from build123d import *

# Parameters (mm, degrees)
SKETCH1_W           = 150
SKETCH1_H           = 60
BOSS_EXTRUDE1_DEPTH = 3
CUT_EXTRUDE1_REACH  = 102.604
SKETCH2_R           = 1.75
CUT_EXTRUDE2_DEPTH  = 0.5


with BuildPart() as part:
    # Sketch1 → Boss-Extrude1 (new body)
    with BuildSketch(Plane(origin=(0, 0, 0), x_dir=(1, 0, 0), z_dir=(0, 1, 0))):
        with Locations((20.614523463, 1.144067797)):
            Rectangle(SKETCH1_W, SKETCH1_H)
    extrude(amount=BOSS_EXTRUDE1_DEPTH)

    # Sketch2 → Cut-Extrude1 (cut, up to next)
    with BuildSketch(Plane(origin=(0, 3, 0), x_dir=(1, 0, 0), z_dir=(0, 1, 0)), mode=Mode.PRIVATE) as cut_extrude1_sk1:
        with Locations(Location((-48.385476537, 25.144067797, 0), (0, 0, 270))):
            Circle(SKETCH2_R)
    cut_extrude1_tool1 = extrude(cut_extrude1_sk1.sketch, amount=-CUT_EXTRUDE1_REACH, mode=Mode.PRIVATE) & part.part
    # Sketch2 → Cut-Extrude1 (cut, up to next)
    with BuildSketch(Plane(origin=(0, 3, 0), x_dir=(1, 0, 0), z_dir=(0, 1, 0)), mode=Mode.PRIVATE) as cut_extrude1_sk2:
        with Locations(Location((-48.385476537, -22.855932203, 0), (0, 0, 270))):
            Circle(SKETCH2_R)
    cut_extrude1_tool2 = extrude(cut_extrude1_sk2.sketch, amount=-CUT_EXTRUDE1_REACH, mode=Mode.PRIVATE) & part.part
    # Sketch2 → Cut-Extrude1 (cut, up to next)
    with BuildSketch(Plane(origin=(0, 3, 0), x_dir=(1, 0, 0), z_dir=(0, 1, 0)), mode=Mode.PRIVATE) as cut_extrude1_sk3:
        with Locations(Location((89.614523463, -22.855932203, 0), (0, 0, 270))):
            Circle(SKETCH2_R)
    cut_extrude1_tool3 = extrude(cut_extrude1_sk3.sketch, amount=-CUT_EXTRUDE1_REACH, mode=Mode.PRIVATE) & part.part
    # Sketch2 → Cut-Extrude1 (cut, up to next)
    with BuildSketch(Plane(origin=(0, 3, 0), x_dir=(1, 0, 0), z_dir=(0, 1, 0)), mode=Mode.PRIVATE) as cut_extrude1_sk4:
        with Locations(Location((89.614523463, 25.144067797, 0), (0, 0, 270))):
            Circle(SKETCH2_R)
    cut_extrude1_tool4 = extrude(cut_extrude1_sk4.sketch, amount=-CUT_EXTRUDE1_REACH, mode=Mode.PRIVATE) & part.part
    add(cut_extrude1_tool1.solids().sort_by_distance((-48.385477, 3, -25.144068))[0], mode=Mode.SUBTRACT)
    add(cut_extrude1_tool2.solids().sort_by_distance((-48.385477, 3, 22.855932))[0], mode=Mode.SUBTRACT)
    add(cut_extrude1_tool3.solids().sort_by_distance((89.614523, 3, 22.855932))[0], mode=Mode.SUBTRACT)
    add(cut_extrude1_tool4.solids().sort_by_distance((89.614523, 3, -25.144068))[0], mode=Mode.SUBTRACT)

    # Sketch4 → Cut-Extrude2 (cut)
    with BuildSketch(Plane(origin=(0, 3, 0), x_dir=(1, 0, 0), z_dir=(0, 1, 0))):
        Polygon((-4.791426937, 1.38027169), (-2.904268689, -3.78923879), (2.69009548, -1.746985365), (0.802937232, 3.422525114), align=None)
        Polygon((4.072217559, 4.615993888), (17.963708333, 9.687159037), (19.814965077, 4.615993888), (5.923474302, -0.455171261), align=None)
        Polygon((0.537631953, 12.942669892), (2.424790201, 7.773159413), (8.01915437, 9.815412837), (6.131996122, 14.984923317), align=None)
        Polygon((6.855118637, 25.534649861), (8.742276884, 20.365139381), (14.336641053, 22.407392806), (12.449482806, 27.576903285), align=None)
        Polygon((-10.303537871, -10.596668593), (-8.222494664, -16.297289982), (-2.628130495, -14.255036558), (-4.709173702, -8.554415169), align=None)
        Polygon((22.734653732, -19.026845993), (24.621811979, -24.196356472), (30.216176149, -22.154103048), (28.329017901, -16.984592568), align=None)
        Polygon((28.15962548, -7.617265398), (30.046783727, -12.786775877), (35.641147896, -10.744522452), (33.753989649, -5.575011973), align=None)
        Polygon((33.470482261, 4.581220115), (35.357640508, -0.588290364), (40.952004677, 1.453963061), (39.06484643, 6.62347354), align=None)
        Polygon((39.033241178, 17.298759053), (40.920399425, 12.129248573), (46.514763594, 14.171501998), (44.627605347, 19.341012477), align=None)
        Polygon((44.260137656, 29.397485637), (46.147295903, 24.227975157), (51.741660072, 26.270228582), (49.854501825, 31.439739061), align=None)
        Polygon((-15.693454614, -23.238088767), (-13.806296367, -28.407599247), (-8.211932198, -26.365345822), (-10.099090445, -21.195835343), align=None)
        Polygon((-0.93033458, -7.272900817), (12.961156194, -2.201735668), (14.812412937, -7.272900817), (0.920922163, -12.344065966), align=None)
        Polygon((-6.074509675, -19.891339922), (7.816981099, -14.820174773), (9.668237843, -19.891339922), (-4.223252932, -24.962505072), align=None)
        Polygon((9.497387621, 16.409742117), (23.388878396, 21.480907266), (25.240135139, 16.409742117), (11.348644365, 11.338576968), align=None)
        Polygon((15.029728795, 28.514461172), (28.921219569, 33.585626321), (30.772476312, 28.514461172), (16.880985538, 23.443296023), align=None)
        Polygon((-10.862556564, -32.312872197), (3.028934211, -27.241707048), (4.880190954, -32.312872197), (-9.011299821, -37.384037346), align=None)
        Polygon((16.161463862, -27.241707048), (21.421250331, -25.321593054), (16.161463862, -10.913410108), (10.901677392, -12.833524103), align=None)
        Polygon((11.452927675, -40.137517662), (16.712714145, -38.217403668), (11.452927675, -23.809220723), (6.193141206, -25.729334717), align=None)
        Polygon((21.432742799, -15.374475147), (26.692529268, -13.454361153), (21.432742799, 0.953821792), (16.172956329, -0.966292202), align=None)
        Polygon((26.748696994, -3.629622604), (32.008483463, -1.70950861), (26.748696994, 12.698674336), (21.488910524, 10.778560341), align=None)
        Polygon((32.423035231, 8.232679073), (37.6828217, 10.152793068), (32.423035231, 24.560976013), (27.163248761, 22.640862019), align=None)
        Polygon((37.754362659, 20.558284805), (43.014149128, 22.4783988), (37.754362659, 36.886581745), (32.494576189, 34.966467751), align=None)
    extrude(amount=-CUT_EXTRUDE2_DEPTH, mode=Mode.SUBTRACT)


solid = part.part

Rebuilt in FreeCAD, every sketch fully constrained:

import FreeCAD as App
import Part
import Sketcher

V = App.Vector


def add_polygon(sketch, points):
    """Adds a closed chain of lines whose ends are joined by coincident constraints."""
    first, n = sketch.GeometryCount, len(points)
    for a, b in zip(points, points[1:] + points[:1]):
        sketch.addGeometry(Part.LineSegment(App.Vector(*a, 0), App.Vector(*b, 0)), False)
    for i in range(n):
        sketch.addConstraint(Sketcher.Constraint("Coincident", first + i, 2, first + (i + 1) % n, 1))

doc = App.newDocument("Part")
params = doc.addObject("Spreadsheet::Sheet", "Params")
for row, (alias, value) in enumerate([
    ("sketch1_width", "150 mm"),
    ("sketch1_height", "60 mm"),
    ("pad1_length", "3 mm"),
    ("sketch2_diameter", "3.5 mm"),
    ("sketch3_diameter", "3.5 mm"),
    ("sketch4_diameter", "3.5 mm"),
    ("sketch5_diameter", "3.5 mm"),
    ("pocket5_length", "0.5 mm"),
], start=1):
    params.set(f"A{row}", alias)
    params.set(f"B{row}", "=" + value)
    params.setAlias(f"B{row}", alias)

body = doc.addObject("PartDesign::Body", "Body")

sketch1 = body.newObject("Sketcher::SketchObject", "Sketch")
sketch1.AttachmentSupport = (doc.getObject("XZ_Plane"), [""])
sketch1.MapMode = "FlatFace"
add_polygon(sketch1, [(-54, -31), (-54, 29), (96, 29), (96, -31)])
sketch1.addConstraint(Sketcher.Constraint("Vertical", 0))
sketch1.addConstraint(Sketcher.Constraint("Horizontal", 1))
sketch1.addConstraint(Sketcher.Constraint("Vertical", 2))
sketch1.addConstraint(Sketcher.Constraint("Horizontal", 3))
sketch1.addConstraint(Sketcher.Constraint("DistanceX", 1, 1, 1, 2, 150.0))
sketch1.addConstraint(Sketcher.Constraint("DistanceY", 0, 1, 0, 2, 60.0))
sketch1.addConstraint(Sketcher.Constraint("DistanceX", 0, 2, -1, 1, 54.385477))
sketch1.addConstraint(Sketcher.Constraint("DistanceY", -1, 1, 0, 2, 28.855932))
sketch1.setExpression("Constraints[8]", "Params.sketch1_width")
sketch1.setExpression("Constraints[9]", "Params.sketch1_height")
pad1 = body.newObject("PartDesign::Pad", "Pad")
pad1.Profile = sketch1
pad1.setExpression("Length", "Params.pad1_length")
pad1.Reversed = True

sketch2 = body.newObject("Sketcher::SketchObject", "Sketch001")
sketch2.AttachmentSupport = (doc.getObject("XZ_Plane"), [""])
sketch2.MapMode = "FlatFace"
sketch2.AttachmentOffset = App.Placement(V(0, 0, -3), App.Rotation())
sketch2.addGeometry(Part.Circle(V(-48.4, -25.1, 0), V(0, 0, 1), 1.8), False)
sketch2.addConstraint(Sketcher.Constraint("Diameter", 0, 3.5))
sketch2.addConstraint(Sketcher.Constraint("DistanceX", 0, 3, -1, 1, 48.385477))
sketch2.addConstraint(Sketcher.Constraint("DistanceY", 0, 3, -1, 1, 25.144068))
sketch2.setExpression("Constraints[0]", "Params.sketch2_diameter")
pocket1 = body.newObject("PartDesign::Pocket", "Pocket")
pocket1.Profile = sketch2
pocket1.Type = "UpToFirst"
pocket1.Reversed = True

sketch3 = body.newObject("Sketcher::SketchObject", "Sketch002")
sketch3.AttachmentSupport = (doc.getObject("XZ_Plane"), [""])
sketch3.MapMode = "FlatFace"
sketch3.AttachmentOffset = App.Placement(V(0, 0, -3), App.Rotation())
sketch3.addGeometry(Part.Circle(V(-48.4, 22.9, 0), V(0, 0, 1), 1.8), False)
sketch3.addConstraint(Sketcher.Constraint("Diameter", 0, 3.5))
sketch3.addConstraint(Sketcher.Constraint("DistanceX", 0, 3, -1, 1, 48.385477))
sketch3.addConstraint(Sketcher.Constraint("DistanceY", -1, 1, 0, 3, 22.855932))
sketch3.setExpression("Constraints[0]", "Params.sketch3_diameter")
pocket2 = body.newObject("PartDesign::Pocket", "Pocket001")
pocket2.Profile = sketch3
pocket2.Type = "UpToFirst"
pocket2.Reversed = True

sketch4 = body.newObject("Sketcher::SketchObject", "Sketch003")
sketch4.AttachmentSupport = (doc.getObject("XZ_Plane"), [""])
sketch4.MapMode = "FlatFace"
sketch4.AttachmentOffset = App.Placement(V(0, 0, -3), App.Rotation())
sketch4.addGeometry(Part.Circle(V(89.6, 22.9, 0), V(0, 0, 1), 1.8), False)
sketch4.addConstraint(Sketcher.Constraint("Diameter", 0, 3.5))
sketch4.addConstraint(Sketcher.Constraint("DistanceX", -1, 1, 0, 3, 89.614523))
sketch4.addConstraint(Sketcher.Constraint("DistanceY", -1, 1, 0, 3, 22.855932))
sketch4.setExpression("Constraints[0]", "Params.sketch4_diameter")
pocket3 = body.newObject("PartDesign::Pocket", "Pocket002")
pocket3.Profile = sketch4
pocket3.Type = "UpToFirst"
pocket3.Reversed = True

sketch5 = body.newObject("Sketcher::SketchObject", "Sketch004")
sketch5.AttachmentSupport = (doc.getObject("XZ_Plane"), [""])
sketch5.MapMode = "FlatFace"
sketch5.AttachmentOffset = App.Placement(V(0, 0, -3), App.Rotation())
sketch5.addGeometry(Part.Circle(V(89.6, -25.1, 0), V(0, 0, 1), 1.8), False)
sketch5.addConstraint(Sketcher.Constraint("Diameter", 0, 3.5))
sketch5.addConstraint(Sketcher.Constraint("DistanceX", -1, 1, 0, 3, 89.614523))
sketch5.addConstraint(Sketcher.Constraint("DistanceY", 0, 3, -1, 1, 25.144068))
sketch5.setExpression("Constraints[0]", "Params.sketch5_diameter")
pocket4 = body.newObject("PartDesign::Pocket", "Pocket003")
pocket4.Profile = sketch5
pocket4.Type = "UpToFirst"
pocket4.Reversed = True

sketch6 = body.newObject("Sketcher::SketchObject", "Sketch005")
sketch6.AttachmentSupport = (doc.getObject("XZ_Plane"), [""])
sketch6.MapMode = "FlatFace"
sketch6.AttachmentOffset = App.Placement(V(0, 0, -3), App.Rotation())
add_polygon(sketch6, [(-5, -1), (-3, 4), (3, 2), (1, -3)])
add_polygon(sketch6, [(18, -10), (4, -5), (6, 0), (20, -5)])
add_polygon(sketch6, [(1, -13), (2, -8), (8, -10), (6, -15)])
add_polygon(sketch6, [(7, -26), (9, -20), (14, -22), (12, -28)])
add_polygon(sketch6, [(-10, 11), (-8, 16), (-3, 14), (-5, 9)])
add_polygon(sketch6, [(23, 19), (25, 24), (30, 22), (28, 17)])
add_polygon(sketch6, [(28, 8), (30, 13), (36, 11), (34, 6)])
add_polygon(sketch6, [(33, -5), (35, 1), (41, -1), (39, -7)])
add_polygon(sketch6, [(39, -17), (41, -12), (47, -14), (45, -19)])
add_polygon(sketch6, [(44, -29), (46, -24), (52, -26), (50, -31)])
add_polygon(sketch6, [(-16, 23), (-14, 28), (-8, 26), (-10, 21)])
add_polygon(sketch6, [(13, 2), (-1, 7), (1, 12), (15, 7)])
add_polygon(sketch6, [(8, 15), (-6, 20), (-4, 25), (10, 20)])
add_polygon(sketch6, [(23, -21), (9, -16), (11, -11), (25, -16)])
add_polygon(sketch6, [(29, -34), (15, -29), (17, -23), (31, -29)])
add_polygon(sketch6, [(3, 27), (-11, 32), (-9, 37), (5, 32)])
add_polygon(sketch6, [(16, 27), (21, 25), (16, 11), (11, 13)])
add_polygon(sketch6, [(11, 40), (17, 38), (11, 24), (6, 26)])
add_polygon(sketch6, [(21, 15), (27, 13), (21, -1), (16, 1)])
add_polygon(sketch6, [(27, 4), (32, 2), (27, -13), (21, -11)])
add_polygon(sketch6, [(32, -8), (38, -10), (32, -25), (27, -23)])
add_polygon(sketch6, [(38, -21), (43, -22), (38, -37), (32, -35)])
sketch6.addConstraint(Sketcher.Constraint("Perpendicular", 0, 1))
sketch6.addConstraint(Sketcher.Constraint("Perpendicular", 1, 2))
sketch6.addConstraint(Sketcher.Constraint("Perpendicular", 2, 3))
sketch6.addConstraint(Sketcher.Constraint("Parallel", 3, 4))
sketch6.addConstraint(Sketcher.Constraint("Perpendicular", 4, 5))
sketch6.addConstraint(Sketcher.Constraint("Perpendicular", 5, 6))
sketch6.addConstraint(Sketcher.Constraint("Perpendicular", 6, 7))
sketch6.addConstraint(Sketcher.Constraint("Parallel", 7, 8))
sketch6.addConstraint(Sketcher.Constraint("Perpendicular", 8, 9))
sketch6.addConstraint(Sketcher.Constraint("Perpendicular", 9, 10))
sketch6.addConstraint(Sketcher.Constraint("Perpendicular", 10, 11))
sketch6.addConstraint(Sketcher.Constraint("Perpendicular", 11, 12))
sketch6.addConstraint(Sketcher.Constraint("Perpendicular", 12, 13))
sketch6.addConstraint(Sketcher.Constraint("Perpendicular", 13, 14))
sketch6.addConstraint(Sketcher.Constraint("Perpendicular", 14, 15))
sketch6.addConstraint(Sketcher.Constraint("Perpendicular", 15, 16))
sketch6.addConstraint(Sketcher.Constraint("Perpendicular", 16, 17))
sketch6.addConstraint(Sketcher.Constraint("Perpendicular", 17, 18))
sketch6.addConstraint(Sketcher.Constraint("Perpendicular", 18, 19))
sketch6.addConstraint(Sketcher.Constraint("Perpendicular", 19, 20))
sketch6.addConstraint(Sketcher.Constraint("Perpendicular", 20, 21))
sketch6.addConstraint(Sketcher.Constraint("Perpendicular", 21, 22))
sketch6.addConstraint(Sketcher.Constraint("Perpendicular", 22, 23))
sketch6.addConstraint(Sketcher.Constraint("Perpendicular", 23, 24))
sketch6.addConstraint(Sketcher.Constraint("Perpendicular", 24, 25))
sketch6.addConstraint(Sketcher.Constraint("Perpendicular", 25, 26))
sketch6.addConstraint(Sketcher.Constraint("Perpendicular", 26, 27))
sketch6.addConstraint(Sketcher.Constraint("Perpendicular", 27, 28))
sketch6.addConstraint(Sketcher.Constraint("Perpendicular", 28, 29))
sketch6.addConstraint(Sketcher.Constraint("Perpendicular", 29, 30))
sketch6.addConstraint(Sketcher.Constraint("Perpendicular", 30, 31))
sketch6.addConstraint(Sketcher.Constraint("Perpendicular", 31, 32))
sketch6.addConstraint(Sketcher.Constraint("Perpendicular", 32, 33))
sketch6.addConstraint(Sketcher.Constraint("Perpendicular", 33, 34))
sketch6.addConstraint(Sketcher.Constraint("Perpendicular", 34, 35))
sketch6.addConstraint(Sketcher.Constraint("Perpendicular", 35, 36))
sketch6.addConstraint(Sketcher.Constraint("Perpendicular", 36, 37))
sketch6.addConstraint(Sketcher.Constraint("Perpendicular", 37, 38))
sketch6.addConstraint(Sketcher.Constraint("Perpendicular", 38, 39))
sketch6.addConstraint(Sketcher.Constraint("Perpendicular", 39, 40))
sketch6.addConstraint(Sketcher.Constraint("Perpendicular", 40, 41))
sketch6.addConstraint(Sketcher.Constraint("Perpendicular", 41, 42))
sketch6.addConstraint(Sketcher.Constraint("Perpendicular", 42, 43))
sketch6.addConstraint(Sketcher.Constraint("Parallel", 43, 44))
sketch6.addConstraint(Sketcher.Constraint("Perpendicular", 44, 45))
sketch6.addConstraint(Sketcher.Constraint("Perpendicular", 45, 46))
sketch6.addConstraint(Sketcher.Constraint("Perpendicular", 46, 47))
sketch6.addConstraint(Sketcher.Constraint("Perpendicular", 47, 48))
sketch6.addConstraint(Sketcher.Constraint("Perpendicular", 48, 49))
sketch6.addConstraint(Sketcher.Constraint("Perpendicular", 49, 50))
sketch6.addConstraint(Sketcher.Constraint("Perpendicular", 50, 51))
sketch6.addConstraint(Sketcher.Constraint("Perpendicular", 51, 52))
sketch6.addConstraint(Sketcher.Constraint("Perpendicular", 52, 53))
sketch6.addConstraint(Sketcher.Constraint("Perpendicular", 53, 54))
sketch6.addConstraint(Sketcher.Constraint("Perpendicular", 54, 55))
sketch6.addConstraint(Sketcher.Constraint("Perpendicular", 55, 56))
sketch6.addConstraint(Sketcher.Constraint("Perpendicular", 56, 57))
sketch6.addConstraint(Sketcher.Constraint("Perpendicular", 57, 58))
sketch6.addConstraint(Sketcher.Constraint("Perpendicular", 58, 59))
sketch6.addConstraint(Sketcher.Constraint("Perpendicular", 59, 60))
sketch6.addConstraint(Sketcher.Constraint("Perpendicular", 60, 61))
sketch6.addConstraint(Sketcher.Constraint("Perpendicular", 61, 62))
sketch6.addConstraint(Sketcher.Constraint("Perpendicular", 62, 63))
sketch6.addConstraint(Sketcher.Constraint("Perpendicular", 63, 64))
sketch6.addConstraint(Sketcher.Constraint("Perpendicular", 64, 65))
sketch6.addConstraint(Sketcher.Constraint("Perpendicular", 65, 66))
sketch6.addConstraint(Sketcher.Constraint("Perpendicular", 66, 67))
sketch6.addConstraint(Sketcher.Constraint("Perpendicular", 67, 68))
sketch6.addConstraint(Sketcher.Constraint("Perpendicular", 68, 69))
sketch6.addConstraint(Sketcher.Constraint("Perpendicular", 69, 70))
sketch6.addConstraint(Sketcher.Constraint("Perpendicular", 70, 71))
sketch6.addConstraint(Sketcher.Constraint("Perpendicular", 71, 72))
sketch6.addConstraint(Sketcher.Constraint("Perpendicular", 72, 73))
sketch6.addConstraint(Sketcher.Constraint("Perpendicular", 73, 74))
sketch6.addConstraint(Sketcher.Constraint("Perpendicular", 74, 75))
sketch6.addConstraint(Sketcher.Constraint("Perpendicular", 75, 76))
sketch6.addConstraint(Sketcher.Constraint("Perpendicular", 76, 77))
sketch6.addConstraint(Sketcher.Constraint("Perpendicular", 77, 78))
sketch6.addConstraint(Sketcher.Constraint("Perpendicular", 78, 79))
sketch6.addConstraint(Sketcher.Constraint("Perpendicular", 79, 80))
sketch6.addConstraint(Sketcher.Constraint("Perpendicular", 80, 81))
sketch6.addConstraint(Sketcher.Constraint("Perpendicular", 81, 82))
sketch6.addConstraint(Sketcher.Constraint("Perpendicular", 82, 83))
sketch6.addConstraint(Sketcher.Constraint("Perpendicular", 83, 84))
sketch6.addConstraint(Sketcher.Constraint("Perpendicular", 84, 85))
sketch6.addConstraint(Sketcher.Constraint("Perpendicular", 85, 86))
sketch6.addConstraint(Sketcher.Constraint("Perpendicular", 86, 87))
sketch6.addConstraint(Sketcher.Constraint("Horizontal", 4, 2, 6, 2))
sketch6.addConstraint(Sketcher.Constraint("Horizontal", 44, 2, 46, 2))
sketch6.addConstraint(Sketcher.Constraint("Horizontal", 48, 2, 50, 2))
sketch6.addConstraint(Sketcher.Constraint("Horizontal", 52, 2, 54, 2))
sketch6.addConstraint(Sketcher.Constraint("Horizontal", 56, 2, 58, 2))
sketch6.addConstraint(Sketcher.Constraint("Horizontal", 60, 2, 62, 2))
sketch6.addConstraint(Sketcher.Constraint("Horizontal", 63, 2, 67, 2))
sketch6.addConstraint(Sketcher.Constraint("Vertical", 65, 2, 67, 2))
sketch6.addConstraint(Sketcher.Constraint("Vertical", 69, 2, 71, 2))
sketch6.addConstraint(Sketcher.Constraint("Vertical", 73, 2, 75, 2))
sketch6.addConstraint(Sketcher.Constraint("Vertical", 77, 2, 79, 2))
sketch6.addConstraint(Sketcher.Constraint("Vertical", 81, 2, 83, 2))
sketch6.addConstraint(Sketcher.Constraint("Vertical", 85, 2, 87, 2))
sketch6.addConstraint(Sketcher.Constraint("Equal", 2, 8))
sketch6.addConstraint(Sketcher.Constraint("Equal", 3, 9))
sketch6.addConstraint(Sketcher.Constraint("Equal", 10, 12))
sketch6.addConstraint(Sketcher.Constraint("Equal", 11, 13))
sketch6.addConstraint(Sketcher.Constraint("Equal", 15, 17))
sketch6.addConstraint(Sketcher.Constraint("Equal", 14, 20))
sketch6.addConstraint(Sketcher.Constraint("Equal", 19, 21))
sketch6.addConstraint(Sketcher.Constraint("Equal", 22, 24))
sketch6.addConstraint(Sketcher.Constraint("Equal", 23, 25))
sketch6.addConstraint(Sketcher.Constraint("Equal", 26, 28))
sketch6.addConstraint(Sketcher.Constraint("Equal", 27, 29))
sketch6.addConstraint(Sketcher.Constraint("Equal", 30, 32))
sketch6.addConstraint(Sketcher.Constraint("Equal", 31, 33))
sketch6.addConstraint(Sketcher.Constraint("Equal", 34, 36))
sketch6.addConstraint(Sketcher.Constraint("Equal", 35, 37))
sketch6.addConstraint(Sketcher.Constraint("Equal", 38, 40))
sketch6.addConstraint(Sketcher.Constraint("Equal", 39, 41))
sketch6.addConstraint(Sketcher.Constraint("Equal", 6, 44))
sketch6.addConstraint(Sketcher.Constraint("Equal", 46, 48))
sketch6.addConstraint(Sketcher.Constraint("Equal", 50, 52))
sketch6.addConstraint(Sketcher.Constraint("Equal", 54, 56))
sketch6.addConstraint(Sketcher.Constraint("Equal", 58, 60))
sketch6.addConstraint(Sketcher.Constraint("Equal", 66, 68))
sketch6.addConstraint(Sketcher.Constraint("Equal", 70, 72))
sketch6.addConstraint(Sketcher.Constraint("Equal", 74, 76))
sketch6.addConstraint(Sketcher.Constraint("Equal", 78, 80))
sketch6.addConstraint(Sketcher.Constraint("Equal", 82, 84))
sketch6.addConstraint(Sketcher.Constraint("Distance", 0, 5.5032))
sketch6.addConstraint(Sketcher.Constraint("DistanceX", -1, 1, 32, 2, 40.920399))
sketch6.addConstraint(Sketcher.Constraint("DistanceY", 33, 2, -1, 1, 14.171502))
sketch6.addConstraint(Sketcher.Constraint("DistanceX", -1, 1, 38, 2, 49.854502))
sketch6.addConstraint(Sketcher.Constraint("DistanceY", -1, 1, 40, 2, 28.407599))
sketch6.addConstraint(Sketcher.Constraint("DistanceY", -1, 1, 44, 2, 7.272901))
sketch6.addConstraint(Sketcher.Constraint("DistanceX", 61, 2, -1, 1, 9.0113))
sketch6.addConstraint(Sketcher.Constraint("DistanceY", 84, 2, -1, 1, 22.478399))
sketch6.addConstraint(Sketcher.Constraint("Distance", 4, 14.788179))
sketch6.addConstraint(Sketcher.Constraint("DistanceX", 0, 2, -1, 1, 2.904269))
sketch6.addConstraint(Sketcher.Constraint("DistanceY", -1, 1, 0, 2, 3.789239))
sketch6.addConstraint(Sketcher.Constraint("DistanceY", 3, 2, -1, 1, 1.380272))
sketch6.addConstraint(Sketcher.Constraint("DistanceY", -1, 1, 5, 2, 0.455171))
sketch6.addConstraint(Sketcher.Constraint("DistanceX", -1, 1, 7, 2, 17.963708))
sketch6.addConstraint(Sketcher.Constraint("DistanceX", -1, 1, 8, 2, 2.42479))
sketch6.addConstraint(Sketcher.Constraint("DistanceY", 8, 2, -1, 1, 7.773159))
sketch6.addConstraint(Sketcher.Constraint("DistanceY", 12, 2, -1, 1, 20.365139))
sketch6.addConstraint(Sketcher.Constraint("DistanceX", -1, 1, 13, 2, 14.336641))
sketch6.addConstraint(Sketcher.Constraint("DistanceX", -1, 1, 15, 2, 6.855119))
sketch6.addConstraint(Sketcher.Constraint("DistanceY", -1, 1, 16, 2, 16.29729))
sketch6.addConstraint(Sketcher.Constraint("DistanceX", 17, 2, -1, 1, 2.62813))
sketch6.addConstraint(Sketcher.Constraint("DistanceY", -1, 1, 19, 2, 10.596669))
sketch6.addConstraint(Sketcher.Constraint("DistanceX", -1, 1, 20, 2, 24.621812))
sketch6.addConstraint(Sketcher.Constraint("DistanceX", -1, 1, 26, 2, 33.75399))
sketch6.addConstraint(Sketcher.Constraint("DistanceY", -1, 1, 26, 2, 5.575012))
sketch6.addConstraint(Sketcher.Constraint("DistanceX", -1, 1, 28, 2, 35.357641))
sketch6.addConstraint(Sketcher.Constraint("DistanceY", -1, 1, 28, 2, 0.58829))
sketch6.addConstraint(Sketcher.Constraint("DistanceY", 37, 2, -1, 1, 26.270229))
sketch6.addConstraint(Sketcher.Constraint("DistanceX", 42, 2, -1, 1, 10.09909))
sketch6.addConstraint(Sketcher.Constraint("DistanceX", 48, 2, -1, 1, 6.07451))
sketch6.addConstraint(Sketcher.Constraint("DistanceY", -1, 1, 48, 2, 19.89134))
sketch6.addConstraint(Sketcher.Constraint("DistanceX", -1, 1, 55, 2, 23.388878))
sketch6.addConstraint(Sketcher.Constraint("DistanceX", -1, 1, 56, 2, 15.029729))
sketch6.addConstraint(Sketcher.Constraint("DistanceY", 56, 2, -1, 1, 28.514461))
sketch6.addConstraint(Sketcher.Constraint("DistanceX", -1, 1, 64, 2, 21.42125))
sketch6.addConstraint(Sketcher.Constraint("DistanceY", -1, 1, 65, 2, 10.91341))
sketch6.addConstraint(Sketcher.Constraint("DistanceY", -1, 1, 69, 2, 23.809221))
sketch6.addConstraint(Sketcher.Constraint("DistanceX", -1, 1, 70, 2, 6.193141))
sketch6.addConstraint(Sketcher.Constraint("DistanceX", -1, 1, 72, 2, 26.692529))
sketch6.addConstraint(Sketcher.Constraint("DistanceY", -1, 1, 72, 2, 13.454361))
sketch6.addConstraint(Sketcher.Constraint("DistanceY", 73, 2, -1, 1, 0.953822))
sketch6.addConstraint(Sketcher.Constraint("DistanceY", -1, 1, 76, 2, 1.709509))
sketch6.addConstraint(Sketcher.Constraint("DistanceX", -1, 1, 78, 2, 21.488911))
sketch6.addConstraint(Sketcher.Constraint("DistanceX", -1, 1, 80, 2, 37.682822))
sketch6.addConstraint(Sketcher.Constraint("DistanceY", 83, 2, -1, 1, 8.232679))
sketch6.addConstraint(Sketcher.Constraint("DistanceX", -1, 1, 84, 2, 43.014149))
sketch6.addConstraint(Sketcher.Constraint("DistanceY", -1, 1, 20, 2, 24.196356))
sketch6.addConstraint(Sketcher.Constraint("DistanceX", 44, 2, -1, 1, 0.930335))
sketch6.addConstraint(Sketcher.Constraint("DistanceY", 52, 2, -1, 1, 16.409742))
pocket5 = body.newObject("PartDesign::Pocket", "Pocket004")
pocket5.Profile = sketch6
pocket5.setExpression("Length", "Params.pocket5_length")
pocket5.Reversed = True

doc.recompute()
